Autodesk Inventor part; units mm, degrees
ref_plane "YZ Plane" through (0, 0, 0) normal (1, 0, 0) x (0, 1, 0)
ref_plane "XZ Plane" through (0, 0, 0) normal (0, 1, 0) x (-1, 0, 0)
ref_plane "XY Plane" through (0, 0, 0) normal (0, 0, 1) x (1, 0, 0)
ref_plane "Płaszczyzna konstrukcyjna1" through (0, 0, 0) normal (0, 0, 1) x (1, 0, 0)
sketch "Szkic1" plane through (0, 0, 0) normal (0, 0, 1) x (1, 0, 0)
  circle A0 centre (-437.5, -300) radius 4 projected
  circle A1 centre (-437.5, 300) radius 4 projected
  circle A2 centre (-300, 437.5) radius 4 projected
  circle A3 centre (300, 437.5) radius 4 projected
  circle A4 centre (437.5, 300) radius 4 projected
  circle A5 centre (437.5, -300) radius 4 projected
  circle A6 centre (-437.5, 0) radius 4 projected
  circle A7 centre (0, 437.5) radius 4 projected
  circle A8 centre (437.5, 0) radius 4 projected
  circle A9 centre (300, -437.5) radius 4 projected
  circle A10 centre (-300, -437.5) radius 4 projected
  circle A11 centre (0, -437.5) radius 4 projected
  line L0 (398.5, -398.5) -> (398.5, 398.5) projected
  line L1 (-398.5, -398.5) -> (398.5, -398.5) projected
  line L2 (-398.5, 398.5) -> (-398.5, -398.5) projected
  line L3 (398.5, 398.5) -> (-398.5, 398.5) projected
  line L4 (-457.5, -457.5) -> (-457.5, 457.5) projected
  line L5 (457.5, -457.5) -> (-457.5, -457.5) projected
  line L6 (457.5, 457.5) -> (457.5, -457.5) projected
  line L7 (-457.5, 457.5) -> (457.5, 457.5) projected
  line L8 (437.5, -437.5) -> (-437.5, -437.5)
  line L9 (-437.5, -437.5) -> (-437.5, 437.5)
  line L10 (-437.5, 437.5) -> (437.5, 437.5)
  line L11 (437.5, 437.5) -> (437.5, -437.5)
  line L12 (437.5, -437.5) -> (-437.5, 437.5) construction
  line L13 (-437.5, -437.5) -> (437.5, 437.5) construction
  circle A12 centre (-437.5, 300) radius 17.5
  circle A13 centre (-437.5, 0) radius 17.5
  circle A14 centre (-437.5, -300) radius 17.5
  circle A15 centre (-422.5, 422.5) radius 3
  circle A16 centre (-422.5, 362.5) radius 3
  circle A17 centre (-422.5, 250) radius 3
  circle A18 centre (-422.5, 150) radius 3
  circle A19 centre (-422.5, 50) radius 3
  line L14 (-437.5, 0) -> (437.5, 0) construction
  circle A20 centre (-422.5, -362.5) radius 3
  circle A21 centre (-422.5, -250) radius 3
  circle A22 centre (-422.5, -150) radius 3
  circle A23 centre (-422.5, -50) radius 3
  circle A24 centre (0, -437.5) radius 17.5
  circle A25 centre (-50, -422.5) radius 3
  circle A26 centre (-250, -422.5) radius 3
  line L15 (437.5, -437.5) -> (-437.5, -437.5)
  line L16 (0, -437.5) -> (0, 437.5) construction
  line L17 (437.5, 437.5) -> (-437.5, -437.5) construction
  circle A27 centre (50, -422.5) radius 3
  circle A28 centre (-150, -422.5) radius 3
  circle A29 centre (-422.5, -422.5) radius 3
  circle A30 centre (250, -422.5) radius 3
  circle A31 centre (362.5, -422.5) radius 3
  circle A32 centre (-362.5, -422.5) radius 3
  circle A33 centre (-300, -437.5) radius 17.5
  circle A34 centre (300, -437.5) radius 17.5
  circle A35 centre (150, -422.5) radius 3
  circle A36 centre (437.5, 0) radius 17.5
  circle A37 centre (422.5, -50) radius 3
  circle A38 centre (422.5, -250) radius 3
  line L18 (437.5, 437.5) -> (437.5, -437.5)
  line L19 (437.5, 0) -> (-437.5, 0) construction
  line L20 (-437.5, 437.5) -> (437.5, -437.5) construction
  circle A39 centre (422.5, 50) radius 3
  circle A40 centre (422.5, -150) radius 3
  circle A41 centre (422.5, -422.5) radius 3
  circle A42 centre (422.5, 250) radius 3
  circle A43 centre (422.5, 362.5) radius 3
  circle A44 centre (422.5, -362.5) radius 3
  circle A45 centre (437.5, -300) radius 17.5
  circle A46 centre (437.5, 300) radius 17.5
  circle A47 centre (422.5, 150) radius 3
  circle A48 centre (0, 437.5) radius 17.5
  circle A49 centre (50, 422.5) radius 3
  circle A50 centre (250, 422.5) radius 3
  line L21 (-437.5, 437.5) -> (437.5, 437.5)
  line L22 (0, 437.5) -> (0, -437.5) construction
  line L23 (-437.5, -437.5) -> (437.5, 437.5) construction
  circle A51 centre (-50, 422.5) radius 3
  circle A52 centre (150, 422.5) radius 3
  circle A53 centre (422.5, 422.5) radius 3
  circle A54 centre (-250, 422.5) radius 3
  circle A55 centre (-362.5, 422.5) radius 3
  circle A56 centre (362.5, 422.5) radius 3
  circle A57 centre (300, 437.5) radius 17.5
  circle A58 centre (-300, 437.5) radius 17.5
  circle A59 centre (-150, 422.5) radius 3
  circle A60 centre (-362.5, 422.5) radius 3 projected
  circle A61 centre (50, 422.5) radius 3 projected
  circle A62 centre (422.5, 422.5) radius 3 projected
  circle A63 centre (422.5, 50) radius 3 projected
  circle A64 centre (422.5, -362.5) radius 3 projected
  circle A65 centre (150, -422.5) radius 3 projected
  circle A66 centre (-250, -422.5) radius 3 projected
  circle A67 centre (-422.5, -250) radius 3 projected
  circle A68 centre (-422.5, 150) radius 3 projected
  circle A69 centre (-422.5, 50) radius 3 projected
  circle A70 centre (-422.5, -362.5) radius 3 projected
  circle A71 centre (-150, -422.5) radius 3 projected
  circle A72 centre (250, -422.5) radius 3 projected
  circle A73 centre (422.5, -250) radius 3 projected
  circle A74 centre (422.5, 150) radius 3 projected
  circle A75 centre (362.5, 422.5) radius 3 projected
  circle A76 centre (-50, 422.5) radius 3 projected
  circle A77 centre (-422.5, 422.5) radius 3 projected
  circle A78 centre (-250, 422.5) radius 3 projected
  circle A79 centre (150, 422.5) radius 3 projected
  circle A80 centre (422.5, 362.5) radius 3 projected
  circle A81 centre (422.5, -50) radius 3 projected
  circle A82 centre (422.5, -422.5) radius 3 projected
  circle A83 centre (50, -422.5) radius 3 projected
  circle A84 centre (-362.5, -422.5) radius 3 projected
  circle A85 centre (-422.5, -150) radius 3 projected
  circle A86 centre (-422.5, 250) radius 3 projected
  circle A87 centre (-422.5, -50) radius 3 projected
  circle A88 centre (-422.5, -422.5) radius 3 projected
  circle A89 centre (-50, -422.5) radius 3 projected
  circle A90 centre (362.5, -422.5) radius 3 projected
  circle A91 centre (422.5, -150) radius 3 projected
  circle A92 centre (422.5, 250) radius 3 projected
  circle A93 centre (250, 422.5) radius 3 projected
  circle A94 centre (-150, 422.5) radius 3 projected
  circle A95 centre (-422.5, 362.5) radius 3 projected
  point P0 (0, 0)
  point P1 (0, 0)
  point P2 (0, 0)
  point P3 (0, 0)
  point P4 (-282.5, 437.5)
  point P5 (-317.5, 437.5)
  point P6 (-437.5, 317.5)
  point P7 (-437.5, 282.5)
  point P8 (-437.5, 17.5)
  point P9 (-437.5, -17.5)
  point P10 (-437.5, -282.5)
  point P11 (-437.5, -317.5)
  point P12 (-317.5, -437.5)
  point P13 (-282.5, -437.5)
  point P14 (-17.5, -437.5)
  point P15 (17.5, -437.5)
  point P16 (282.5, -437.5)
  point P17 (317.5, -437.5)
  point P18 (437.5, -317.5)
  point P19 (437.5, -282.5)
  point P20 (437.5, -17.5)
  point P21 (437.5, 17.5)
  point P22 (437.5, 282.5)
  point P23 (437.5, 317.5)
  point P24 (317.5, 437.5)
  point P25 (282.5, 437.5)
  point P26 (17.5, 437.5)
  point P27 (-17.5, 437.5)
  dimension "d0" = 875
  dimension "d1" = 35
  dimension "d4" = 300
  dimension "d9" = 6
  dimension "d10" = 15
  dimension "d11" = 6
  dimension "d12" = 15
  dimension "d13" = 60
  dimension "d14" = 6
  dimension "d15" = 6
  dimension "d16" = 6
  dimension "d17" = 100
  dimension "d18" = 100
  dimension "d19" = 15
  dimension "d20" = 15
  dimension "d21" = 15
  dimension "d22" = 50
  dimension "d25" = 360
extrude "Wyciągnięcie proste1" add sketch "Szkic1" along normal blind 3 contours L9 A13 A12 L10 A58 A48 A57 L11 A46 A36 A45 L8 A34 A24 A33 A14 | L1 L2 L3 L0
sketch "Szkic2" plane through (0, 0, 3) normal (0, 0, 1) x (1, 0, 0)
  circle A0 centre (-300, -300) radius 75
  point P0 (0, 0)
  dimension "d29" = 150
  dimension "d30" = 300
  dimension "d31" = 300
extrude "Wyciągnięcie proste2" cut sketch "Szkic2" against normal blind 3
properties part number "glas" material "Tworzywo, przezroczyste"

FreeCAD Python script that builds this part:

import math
import FreeCAD as App
import Part
import Sketcher
from FreeCAD import Vector

doc = App.newDocument("Part")
params = doc.addObject("Spreadsheet::Sheet", "Params")
for row, (alias, value) in enumerate([
    ("sketch1_diameter", "6 mm"),
    ("sketch1_radius", "17.5 mm"),
    ("sketch1_width", "120 mm"),
    ("pad1_length", "3 mm"),
    ("sketch2_diameter", "150 mm"),
    ("pocket1_length", "3 mm"),
], start=1):
    params.set(f"A{row}", alias)
    params.set(f"B{row}", "=" + value)
    params.setAlias(f"B{row}", alias)

body = doc.addObject("PartDesign::Body", "Body")

# Sketch on XY plane
sketch1 = body.newObject("Sketcher::SketchObject", "Sketch")
sketch1.AttachmentSupport = (doc.getObject("XY_Plane"), [""])
sketch1.MapMode = "FlatFace"
sketch1.addGeometry(Part.LineSegment(Vector(-437.5, -17.5, 0), Vector(-437.5, -282.5, 0)), False)
sketch1.addGeometry(Part.ArcOfCircle(Part.Circle(Vector(-437.5, -300, 0), Vector(0, 0, 1), 17.5), math.radians(-90), math.radians(90)), False)
sketch1.addGeometry(Part.LineSegment(Vector(-437.5, -317.5, 0), Vector(-437.5, -437.5, 0)), False)
sketch1.addGeometry(Part.LineSegment(Vector(-437.5, -437.5, 0), Vector(-317.5, -437.5, 0)), False)
sketch1.addGeometry(Part.ArcOfCircle(Part.Circle(Vector(-300, -437.5, 0), Vector(0, 0, 1), 17.5), math.radians(0), math.radians(180)), False)
sketch1.addGeometry(Part.LineSegment(Vector(-282.5, -437.5, 0), Vector(-17.5, -437.5, 0)), False)
sketch1.addGeometry(Part.ArcOfCircle(Part.Circle(Vector(0, -437.5, 0), Vector(0, 0, 1), 17.5), math.radians(0), math.radians(180)), False)
sketch1.addGeometry(Part.LineSegment(Vector(17.5, -437.5, 0), Vector(282.5, -437.5, 0)), False)
sketch1.addGeometry(Part.ArcOfCircle(Part.Circle(Vector(300, -437.5, 0), Vector(0, 0, 1), 17.5), math.radians(0), math.radians(180)), False)
sketch1.addGeometry(Part.LineSegment(Vector(317.5, -437.5, 0), Vector(437.5, -437.5, 0)), False)
sketch1.addGeometry(Part.LineSegment(Vector(437.5, -437.5, 0), Vector(437.5, -317.5, 0)), False)
sketch1.addGeometry(Part.ArcOfCircle(Part.Circle(Vector(437.5, -300, 0), Vector(0, 0, 1), 17.5), math.radians(90), math.radians(270)), False)
sketch1.addGeometry(Part.LineSegment(Vector(437.5, -282.5, 0), Vector(437.5, -17.5, 0)), False)
sketch1.addGeometry(Part.ArcOfCircle(Part.Circle(Vector(437.5, 0, 0), Vector(0, 0, 1), 17.5), math.radians(90), math.radians(270)), False)
sketch1.addGeometry(Part.LineSegment(Vector(437.5, 17.5, 0), Vector(437.5, 282.5, 0)), False)
sketch1.addGeometry(Part.ArcOfCircle(Part.Circle(Vector(437.5, 300, 0), Vector(0, 0, 1), 17.5), math.radians(90), math.radians(270)), False)
sketch1.addGeometry(Part.LineSegment(Vector(437.5, 317.5, 0), Vector(437.5, 437.5, 0)), False)
sketch1.addGeometry(Part.LineSegment(Vector(437.5, 437.5, 0), Vector(317.5, 437.5, 0)), False)
sketch1.addGeometry(Part.ArcOfCircle(Part.Circle(Vector(300, 437.5, 0), Vector(0, 0, 1), 17.5), math.radians(180), math.radians(360)), False)
sketch1.addGeometry(Part.LineSegment(Vector(282.5, 437.5, 0), Vector(17.5, 437.5, 0)), False)
sketch1.addGeometry(Part.ArcOfCircle(Part.Circle(Vector(0, 437.5, 0), Vector(0, 0, 1), 17.5), math.radians(180), math.radians(360)), False)
sketch1.addGeometry(Part.LineSegment(Vector(-17.5, 437.5, 0), Vector(-282.5, 437.5, 0)), False)
sketch1.addGeometry(Part.ArcOfCircle(Part.Circle(Vector(-300, 437.5, 0), Vector(0, 0, 1), 17.5), math.radians(180), math.radians(360)), False)
sketch1.addGeometry(Part.LineSegment(Vector(-317.5, 437.5, 0), Vector(-437.5, 437.5, 0)), False)
sketch1.addGeometry(Part.LineSegment(Vector(-437.5, 437.5, 0), Vector(-437.5, 317.5, 0)), False)
sketch1.addGeometry(Part.ArcOfCircle(Part.Circle(Vector(-437.5, 300, 0), Vector(0, 0, 1), 17.5), math.radians(-90), math.radians(90)), False)
sketch1.addGeometry(Part.LineSegment(Vector(-437.5, 282.5, 0), Vector(-437.5, 17.5, 0)), False)
sketch1.addGeometry(Part.ArcOfCircle(Part.Circle(Vector(-437.5, 0, 0), Vector(0, 0, 1), 17.5), math.radians(-90), math.radians(90)), False)
sketch1.addGeometry(Part.Circle(Vector(-422.5, -422.5, 0), Vector(0, 0, 1), 3), False)
sketch1.addGeometry(Part.Circle(Vector(-362.5, -422.5, 0), Vector(0, 0, 1), 3), False)
sketch1.addGeometry(Part.Circle(Vector(-422.5, -362.5, 0), Vector(0, 0, 1), 3), False)
sketch1.addGeometry(Part.Circle(Vector(-250, -422.5, 0), Vector(0, 0, 1), 3), False)
sketch1.addGeometry(Part.Circle(Vector(-422.5, -250, 0), Vector(0, 0, 1), 3), False)
sketch1.addGeometry(Part.Circle(Vector(-150, -422.5, 0), Vector(0, 0, 1), 3), False)
sketch1.addGeometry(Part.Circle(Vector(-50, -422.5, 0), Vector(0, 0, 1), 3), False)
sketch1.addGeometry(Part.Circle(Vector(-422.5, -150, 0), Vector(0, 0, 1), 3), False)
sketch1.addGeometry(Part.Circle(Vector(-422.5, -50, 0), Vector(0, 0, 1), 3), False)
sketch1.addGeometry(Part.Circle(Vector(50, -422.5, 0), Vector(0, 0, 1), 3), False)
sketch1.addGeometry(Part.Circle(Vector(150, -422.5, 0), Vector(0, 0, 1), 3), False)
sketch1.addGeometry(Part.Circle(Vector(250, -422.5, 0), Vector(0, 0, 1), 3), False)
sketch1.addGeometry(Part.Circle(Vector(362.5, -422.5, 0), Vector(0, 0, 1), 3), False)
sketch1.addGeometry(Part.Circle(Vector(422.5, -422.5, 0), Vector(0, 0, 1), 3), False)
sketch1.addGeometry(Part.Circle(Vector(422.5, -362.5, 0), Vector(0, 0, 1), 3), False)
sketch1.addGeometry(Part.Circle(Vector(422.5, -250, 0), Vector(0, 0, 1), 3), False)
sketch1.addGeometry(Part.Circle(Vector(422.5, -150, 0), Vector(0, 0, 1), 3), False)
sketch1.addGeometry(Part.Circle(Vector(422.5, -50, 0), Vector(0, 0, 1), 3), False)
sketch1.addGeometry(Part.Circle(Vector(-422.5, 50, 0), Vector(0, 0, 1), 3), False)
sketch1.addGeometry(Part.Circle(Vector(-422.5, 150, 0), Vector(0, 0, 1), 3), False)
sketch1.addGeometry(Part.Circle(Vector(-422.5, 250, 0), Vector(0, 0, 1), 3), False)
sketch1.addGeometry(Part.Circle(Vector(-422.5, 362.5, 0), Vector(0, 0, 1), 3), False)
sketch1.addGeometry(Part.Circle(Vector(-422.5, 422.5, 0), Vector(0, 0, 1), 3), False)
sketch1.addGeometry(Part.Circle(Vector(-362.5, 422.5, 0), Vector(0, 0, 1), 3), False)
sketch1.addGeometry(Part.Circle(Vector(-250, 422.5, 0), Vector(0, 0, 1), 3), False)
sketch1.addGeometry(Part.Circle(Vector(-150, 422.5, 0), Vector(0, 0, 1), 3), False)
sketch1.addGeometry(Part.Circle(Vector(-50, 422.5, 0), Vector(0, 0, 1), 3), False)
sketch1.addGeometry(Part.Circle(Vector(422.5, 50, 0), Vector(0, 0, 1), 3), False)
sketch1.addGeometry(Part.Circle(Vector(422.5, 150, 0), Vector(0, 0, 1), 3), False)
sketch1.addGeometry(Part.Circle(Vector(50, 422.5, 0), Vector(0, 0, 1), 3), False)
sketch1.addGeometry(Part.Circle(Vector(150, 422.5, 0), Vector(0, 0, 1), 3), False)
sketch1.addGeometry(Part.Circle(Vector(422.5, 250, 0), Vector(0, 0, 1), 3), False)
sketch1.addGeometry(Part.Circle(Vector(250, 422.5, 0), Vector(0, 0, 1), 3), False)
sketch1.addGeometry(Part.Circle(Vector(422.5, 362.5, 0), Vector(0, 0, 1), 3), False)
sketch1.addGeometry(Part.Circle(Vector(362.5, 422.5, 0), Vector(0, 0, 1), 3), False)
sketch1.addGeometry(Part.Circle(Vector(422.5, 422.5, 0), Vector(0, 0, 1), 3), False)
sketch1.addConstraint(Sketcher.Constraint("Coincident", 0, 2, 1, 2))
sketch1.addConstraint(Sketcher.Constraint("Coincident", 1, 1, 2, 1))
sketch1.addConstraint(Sketcher.Constraint("Coincident", 2, 2, 3, 1))
sketch1.addConstraint(Sketcher.Constraint("Coincident", 3, 2, 4, 2))
sketch1.addConstraint(Sketcher.Constraint("Coincident", 4, 1, 5, 1))
sketch1.addConstraint(Sketcher.Constraint("Coincident", 5, 2, 6, 2))
sketch1.addConstraint(Sketcher.Constraint("Coincident", 6, 1, 7, 1))
sketch1.addConstraint(Sketcher.Constraint("Coincident", 7, 2, 8, 2))
sketch1.addConstraint(Sketcher.Constraint("Coincident", 8, 1, 9, 1))
sketch1.addConstraint(Sketcher.Constraint("Coincident", 9, 2, 10, 1))
sketch1.addConstraint(Sketcher.Constraint("Coincident", 10, 2, 11, 2))
sketch1.addConstraint(Sketcher.Constraint("Coincident", 11, 1, 12, 1))
sketch1.addConstraint(Sketcher.Constraint("Coincident", 12, 2, 13, 2))
sketch1.addConstraint(Sketcher.Constraint("Coincident", 13, 1, 14, 1))
sketch1.addConstraint(Sketcher.Constraint("Coincident", 14, 2, 15, 2))
sketch1.addConstraint(Sketcher.Constraint("Coincident", 15, 1, 16, 1))
sketch1.addConstraint(Sketcher.Constraint("Coincident", 16, 2, 17, 1))
sketch1.addConstraint(Sketcher.Constraint("Coincident", 17, 2, 18, 2))
sketch1.addConstraint(Sketcher.Constraint("Coincident", 18, 1, 19, 1))
sketch1.addConstraint(Sketcher.Constraint("Coincident", 19, 2, 20, 2))
sketch1.addConstraint(Sketcher.Constraint("Coincident", 20, 1, 21, 1))
sketch1.addConstraint(Sketcher.Constraint("Coincident", 21, 2, 22, 2))
sketch1.addConstraint(Sketcher.Constraint("Coincident", 22, 1, 23, 1))
sketch1.addConstraint(Sketcher.Constraint("Coincident", 23, 2, 24, 1))
sketch1.addConstraint(Sketcher.Constraint("Coincident", 24, 2, 25, 2))
sketch1.addConstraint(Sketcher.Constraint("Coincident", 25, 1, 26, 1))
sketch1.addConstraint(Sketcher.Constraint("Coincident", 26, 2, 27, 2))
sketch1.addConstraint(Sketcher.Constraint("Coincident", 27, 1, 0, 1))
sketch1.addConstraint(Sketcher.Constraint("Vertical", 0))
sketch1.addConstraint(Sketcher.Constraint("Vertical", 2))
sketch1.addConstraint(Sketcher.Constraint("Horizontal", 3))
sketch1.addConstraint(Sketcher.Constraint("Horizontal", 5))
sketch1.addConstraint(Sketcher.Constraint("Horizontal", 7))
sketch1.addConstraint(Sketcher.Constraint("Horizontal", 9))
sketch1.addConstraint(Sketcher.Constraint("Vertical", 10))
sketch1.addConstraint(Sketcher.Constraint("Vertical", 12))
sketch1.addConstraint(Sketcher.Constraint("Vertical", 14))
sketch1.addConstraint(Sketcher.Constraint("Vertical", 16))
sketch1.addConstraint(Sketcher.Constraint("Horizontal", 17))
sketch1.addConstraint(Sketcher.Constraint("Horizontal", 19))
sketch1.addConstraint(Sketcher.Constraint("Horizontal", 21))
sketch1.addConstraint(Sketcher.Constraint("Horizontal", 23))
sketch1.addConstraint(Sketcher.Constraint("Vertical", 24))
sketch1.addConstraint(Sketcher.Constraint("Vertical", 26))
sketch1.addConstraint(Sketcher.Constraint("Equal", 1, 4))
sketch1.addConstraint(Sketcher.Constraint("Equal", 4, 6))
sketch1.addConstraint(Sketcher.Constraint("Equal", 6, 8))
sketch1.addConstraint(Sketcher.Constraint("Equal", 8, 11))
sketch1.addConstraint(Sketcher.Constraint("Equal", 11, 13))
sketch1.addConstraint(Sketcher.Constraint("Equal", 13, 15))
sketch1.addConstraint(Sketcher.Constraint("Equal", 15, 18))
sketch1.addConstraint(Sketcher.Constraint("Equal", 18, 20))
sketch1.addConstraint(Sketcher.Constraint("Equal", 20, 22))
sketch1.addConstraint(Sketcher.Constraint("Equal", 22, 25))
sketch1.addConstraint(Sketcher.Constraint("Equal", 25, 27))
sketch1.addConstraint(Sketcher.Constraint("Equal", 28, 29))
sketch1.addConstraint(Sketcher.Constraint("Equal", 29, 30))
sketch1.addConstraint(Sketcher.Constraint("Equal", 30, 31))
sketch1.addConstraint(Sketcher.Constraint("Equal", 31, 32))
sketch1.addConstraint(Sketcher.Constraint("Equal", 32, 33))
sketch1.addConstraint(Sketcher.Constraint("Equal", 33, 34))
sketch1.addConstraint(Sketcher.Constraint("Equal", 34, 35))
sketch1.addConstraint(Sketcher.Constraint("Equal", 35, 36))
sketch1.addConstraint(Sketcher.Constraint("Equal", 36, 37))
sketch1.addConstraint(Sketcher.Constraint("Equal", 37, 38))
sketch1.addConstraint(Sketcher.Constraint("Equal", 38, 39))
sketch1.addConstraint(Sketcher.Constraint("Equal", 39, 40))
sketch1.addConstraint(Sketcher.Constraint("Equal", 40, 41))
sketch1.addConstraint(Sketcher.Constraint("Equal", 41, 42))
sketch1.addConstraint(Sketcher.Constraint("Equal", 42, 43))
sketch1.addConstraint(Sketcher.Constraint("Equal", 43, 44))
sketch1.addConstraint(Sketcher.Constraint("Equal", 44, 45))
sketch1.addConstraint(Sketcher.Constraint("Equal", 45, 46))
sketch1.addConstraint(Sketcher.Constraint("Equal", 46, 47))
sketch1.addConstraint(Sketcher.Constraint("Equal", 47, 48))
sketch1.addConstraint(Sketcher.Constraint("Equal", 48, 49))
sketch1.addConstraint(Sketcher.Constraint("Equal", 49, 50))
sketch1.addConstraint(Sketcher.Constraint("Equal", 50, 51))
sketch1.addConstraint(Sketcher.Constraint("Equal", 51, 52))
sketch1.addConstraint(Sketcher.Constraint("Equal", 52, 53))
sketch1.addConstraint(Sketcher.Constraint("Equal", 53, 54))
sketch1.addConstraint(Sketcher.Constraint("Equal", 54, 55))
sketch1.addConstraint(Sketcher.Constraint("Equal", 55, 56))
sketch1.addConstraint(Sketcher.Constraint("Equal", 56, 57))
sketch1.addConstraint(Sketcher.Constraint("Equal", 57, 58))
sketch1.addConstraint(Sketcher.Constraint("Equal", 58, 59))
sketch1.addConstraint(Sketcher.Constraint("Equal", 59, 60))
sketch1.addConstraint(Sketcher.Constraint("Equal", 60, 61))
sketch1.addConstraint(Sketcher.Constraint("Equal", 61, 62))
sketch1.addConstraint(Sketcher.Constraint("Equal", 62, 63))
sketch1.addConstraint(Sketcher.Constraint("Symmetric", 1, 3, 15, 3, -1, 1))
sketch1.addConstraint(Sketcher.Constraint("Symmetric", 4, 3, 18, 3, -1, 1))
sketch1.addConstraint(Sketcher.Constraint("Symmetric", 6, 3, 20, 3, -1, 1))
sketch1.addConstraint(Sketcher.Constraint("Symmetric", 8, 3, 22, 3, -1, 1))
sketch1.addConstraint(Sketcher.Constraint("Symmetric", 11, 3, 25, 3, -1, 1))
sketch1.addConstraint(Sketcher.Constraint("Symmetric", 13, 3, 27, 3, -1, 1))
sketch1.addConstraint(Sketcher.Constraint("Symmetric", 45, 3, 46, 3, -1, 1))
sketch1.addConstraint(Sketcher.Constraint("Symmetric", 44, 3, 47, 3, -1, 1))
sketch1.addConstraint(Sketcher.Constraint("Symmetric", 43, 3, 48, 3, -1, 1))
sketch1.addConstraint(Sketcher.Constraint("Symmetric", 42, 3, 49, 3, -1, 1))
sketch1.addConstraint(Sketcher.Constraint("Symmetric", 41, 3, 50, 3, -1, 1))
sketch1.addConstraint(Sketcher.Constraint("Symmetric", 40, 3, 51, 3, -1, 1))
sketch1.addConstraint(Sketcher.Constraint("Symmetric", 39, 3, 52, 3, -1, 1))
sketch1.addConstraint(Sketcher.Constraint("Symmetric", 38, 3, 53, 3, -1, 1))
sketch1.addConstraint(Sketcher.Constraint("Symmetric", 37, 3, 54, 3, -1, 1))
sketch1.addConstraint(Sketcher.Constraint("Symmetric", 36, 3, 55, 3, -1, 1))
sketch1.addConstraint(Sketcher.Constraint("Symmetric", 35, 3, 56, 3, -1, 1))
sketch1.addConstraint(Sketcher.Constraint("Symmetric", 34, 3, 57, 3, -1, 1))
sketch1.addConstraint(Sketcher.Constraint("Symmetric", 33, 3, 58, 3, -1, 1))
sketch1.addConstraint(Sketcher.Constraint("Symmetric", 32, 3, 59, 3, -1, 1))
sketch1.addConstraint(Sketcher.Constraint("Symmetric", 31, 3, 60, 3, -1, 1))
sketch1.addConstraint(Sketcher.Constraint("Symmetric", 30, 3, 61, 3, -1, 1))
sketch1.addConstraint(Sketcher.Constraint("Symmetric", 29, 3, 62, 3, -1, 1))
sketch1.addConstraint(Sketcher.Constraint("Symmetric", 28, 3, 63, 3, -1, 1))
sketch1.addConstraint(Sketcher.Constraint("Symmetric", 2, 2, 16, 2, -1, 1))
sketch1.addConstraint(Sketcher.Constraint("Symmetric", 9, 2, 23, 2, -1, 1))
sketch1.addConstraint(Sketcher.Constraint("Symmetric", 4, 3, 8, 3, -2))
sketch1.addConstraint(Sketcher.Constraint("Symmetric", 1, 3, 11, 3, -2))
sketch1.addConstraint(Sketcher.Constraint("Symmetric", 34, 3, 37, 3, -2))
sketch1.addConstraint(Sketcher.Constraint("Symmetric", 33, 3, 38, 3, -2))
sketch1.addConstraint(Sketcher.Constraint("Symmetric", 31, 3, 39, 3, -2))
sketch1.addConstraint(Sketcher.Constraint("Symmetric", 29, 3, 40, 3, -2))
sketch1.addConstraint(Sketcher.Constraint("Symmetric", 28, 3, 41, 3, -2))
sketch1.addConstraint(Sketcher.Constraint("Symmetric", 30, 3, 42, 3, -2))
sketch1.addConstraint(Sketcher.Constraint("Symmetric", 32, 3, 43, 3, -2))
sketch1.addConstraint(Sketcher.Constraint("Symmetric", 35, 3, 44, 3, -2))
sketch1.addConstraint(Sketcher.Constraint("Symmetric", 36, 3, 45, 3, -2))
sketch1.addConstraint(Sketcher.Constraint("Symmetric", 5, 2, 6, 1, -2))
sketch1.addConstraint(Sketcher.Constraint("Symmetric", 2, 2, 9, 2, -2))
sketch1.addConstraint(Sketcher.Constraint("Symmetric", 13, 1, 26, 2, -2))
sketch1.addConstraint(Sketcher.Constraint("Horizontal", 4, 3, 6, 3))
sketch1.addConstraint(Sketcher.Constraint("Horizontal", 28, 3, 29, 3))
sketch1.addConstraint(Sketcher.Constraint("Horizontal", 29, 3, 31, 3))
sketch1.addConstraint(Sketcher.Constraint("Horizontal", 31, 3, 33, 3))
sketch1.addConstraint(Sketcher.Constraint("Horizontal", 33, 3, 34, 3))
sketch1.addConstraint(Sketcher.Constraint("Horizontal", 8, 3, 2, 2))
sketch1.addConstraint(Sketcher.Constraint("Horizontal", 3, 2, 4, 1))
sketch1.addConstraint(Sketcher.Constraint("Horizontal", 17, 2, 18, 1))
sketch1.addConstraint(Sketcher.Constraint("Horizontal", 19, 2, 20, 1))
sketch1.addConstraint(Sketcher.Constraint("Vertical", 11, 3, 13, 3))
sketch1.addConstraint(Sketcher.Constraint("Vertical", 28, 3, 30, 3))
sketch1.addConstraint(Sketcher.Constraint("Vertical", 30, 3, 32, 3))
sketch1.addConstraint(Sketcher.Constraint("Vertical", 32, 3, 35, 3))
sketch1.addConstraint(Sketcher.Constraint("Vertical", 35, 3, 36, 3))
sketch1.addConstraint(Sketcher.Constraint("Vertical", 27, 3, 0, 2))
sketch1.addConstraint(Sketcher.Constraint("Vertical", 0, 2, 1, 1))
sketch1.addConstraint(Sketcher.Constraint("Vertical", 10, 2, 11, 1))
sketch1.addConstraint(Sketcher.Constraint("Vertical", 12, 2, 13, 1))
sketch1.addConstraint(Sketcher.Constraint("Equal", 21, 0))
sketch1.addConstraint(Sketcher.Constraint("Equal", 23, 2))
sketch1.addConstraint(Sketcher.Constraint("Diameter", 28, 6.0))
sketch1.addConstraint(Sketcher.Constraint("Radius", 1, 17.5))
sketch1.addConstraint(Sketcher.Constraint("DistanceY", 1, 3, -1, 1, 300.0))
sketch1.addConstraint(Sketcher.Constraint("DistanceX", 34, 3, -1, 1, 50.0))
sketch1.addConstraint(Sketcher.Constraint("DistanceY", 36, 3, -1, 1, 50.0))
sketch1.addConstraint(Sketcher.Constraint("DistanceX", 3, 1, 3, 2, 120.0))
sketch1.addConstraint(Sketcher.Constraint("DistanceX", 31, 3, -1, 1, 250.0))
sketch1.addConstraint(Sketcher.Constraint("DistanceY", 32, 3, -1, 1, 250.0))
sketch1.addConstraint(Sketcher.Constraint("DistanceX", 33, 3, -1, 1, 150.0))
sketch1.addConstraint(Sketcher.Constraint("DistanceY", 35, 3, -1, 1, 150.0))
sketch1.addConstraint(Sketcher.Constraint("DistanceX", 28, 3, -1, 1, 422.5))
sketch1.addConstraint(Sketcher.Constraint("DistanceY", 28, 3, -1, 1, 422.5))
sketch1.addConstraint(Sketcher.Constraint("DistanceX", 29, 3, -1, 1, 362.5))
sketch1.addConstraint(Sketcher.Constraint("DistanceY", 30, 3, -1, 1, 362.5))
sketch1.setExpression("Constraints[150]", "Params.sketch1_diameter")
sketch1.setExpression("Constraints[151]", "Params.sketch1_radius")
sketch1.setExpression("Constraints[155]", "Params.sketch1_width")
pad1 = body.newObject("PartDesign::Pad", "Pad")
pad1.Profile = sketch1
pad1.setExpression("Length", "Params.pad1_length")

# Sketch on XY plane
sketch2 = body.newObject("Sketcher::SketchObject", "Sketch001")
sketch2.AttachmentSupport = (doc.getObject("XY_Plane"), [""])
sketch2.MapMode = "FlatFace"
sketch2.AttachmentOffset = App.Placement(Vector(0, 0, 3), App.Rotation())
sketch2.addGeometry(Part.Circle(Vector(-300, -300, 0), Vector(0, 0, 1), 75), False)
sketch2.addConstraint(Sketcher.Constraint("Diameter", 0, 150.0))
sketch2.addConstraint(Sketcher.Constraint("DistanceX", 0, 3, -1, 1, 300.0))
sketch2.addConstraint(Sketcher.Constraint("DistanceY", 0, 3, -1, 1, 300.0))
sketch2.setExpression("Constraints[0]", "Params.sketch2_diameter")
pocket1 = body.newObject("PartDesign::Pocket", "Pocket")
pocket1.Profile = sketch2
pocket1.setExpression("Length", "Params.pocket1_length")

doc.recompute()
